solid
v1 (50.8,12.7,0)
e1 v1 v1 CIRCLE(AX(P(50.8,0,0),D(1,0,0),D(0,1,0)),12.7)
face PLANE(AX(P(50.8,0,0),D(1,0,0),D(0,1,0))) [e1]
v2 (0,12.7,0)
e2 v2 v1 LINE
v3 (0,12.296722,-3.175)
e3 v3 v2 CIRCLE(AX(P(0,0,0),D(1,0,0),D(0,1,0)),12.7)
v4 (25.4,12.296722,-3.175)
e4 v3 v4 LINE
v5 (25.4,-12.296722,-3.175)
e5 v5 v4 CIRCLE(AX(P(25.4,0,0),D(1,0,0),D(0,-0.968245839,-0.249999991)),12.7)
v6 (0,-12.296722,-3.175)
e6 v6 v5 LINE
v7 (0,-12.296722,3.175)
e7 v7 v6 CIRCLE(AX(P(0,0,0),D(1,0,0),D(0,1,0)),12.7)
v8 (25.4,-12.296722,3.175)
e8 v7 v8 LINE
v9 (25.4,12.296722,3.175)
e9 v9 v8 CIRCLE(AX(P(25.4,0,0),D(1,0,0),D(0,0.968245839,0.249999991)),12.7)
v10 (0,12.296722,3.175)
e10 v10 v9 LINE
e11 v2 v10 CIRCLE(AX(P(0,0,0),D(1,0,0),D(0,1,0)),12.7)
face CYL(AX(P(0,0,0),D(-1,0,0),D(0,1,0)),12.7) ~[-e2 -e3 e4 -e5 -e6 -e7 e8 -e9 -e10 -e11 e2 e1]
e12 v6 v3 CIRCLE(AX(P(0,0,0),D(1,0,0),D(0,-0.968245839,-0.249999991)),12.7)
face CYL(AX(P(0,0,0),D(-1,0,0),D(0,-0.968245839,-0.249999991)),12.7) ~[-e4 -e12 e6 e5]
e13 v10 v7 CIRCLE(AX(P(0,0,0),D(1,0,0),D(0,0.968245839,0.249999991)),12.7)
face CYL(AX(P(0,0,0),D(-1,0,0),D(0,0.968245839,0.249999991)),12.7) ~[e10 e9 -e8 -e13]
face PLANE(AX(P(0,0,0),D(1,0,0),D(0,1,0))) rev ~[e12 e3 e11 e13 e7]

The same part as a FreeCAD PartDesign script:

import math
import FreeCAD as App
import Part
import Sketcher

V = App.Vector
Q = App.Units.Quantity

doc = App.newDocument("Part")
body = doc.addObject("PartDesign::Body", "Body")

sketch1 = body.newObject("Sketcher::SketchObject", "Sketch")
sketch1.AttachmentSupport = (doc.getObject("YZ_Plane"), [""])
sketch1.MapMode = "FlatFace"
sketch1.addGeometry(Part.Circle(V(0, 0, 0), V(0, 0, 1), 12.7), False)
sketch1.addConstraint(Sketcher.Constraint("Coincident", 0, 3, -1, 1))
sketch1.addConstraint(Sketcher.Constraint("Diameter", 0, Q("1 in")))
pad1 = body.newObject("PartDesign::Pad", "Pad")
pad1.Profile = sketch1
pad1.Length = Q("2 in")

sketch2 = body.newObject("Sketcher::SketchObject", "Sketch001")
sketch2.AttachmentSupport = (doc.getObject("YZ_Plane"), [""])
sketch2.MapMode = "FlatFace"
sketch2.addGeometry(Part.LineSegment(V(25.4, 28.575, 0), V(25.4, 3.175, 0)), False)
sketch2.addGeometry(Part.LineSegment(V(25.4, 3.175, 0), V(12.296722, 3.175, 0)), False)
sketch2.addGeometry(Part.ArcOfCircle(Part.Circle(V(0, 0, 0), V(0, 0, 1), 12.7), math.radians(14.477512), math.radians(165.522488)), False)
sketch2.addGeometry(Part.LineSegment(V(-12.296722, 3.175, 0), V(-25.4, 3.175, 0)), False)
sketch2.addGeometry(Part.LineSegment(V(-25.4, 3.175, 0), V(-25.4, 28.575, 0)), False)
sketch2.addGeometry(Part.LineSegment(V(-25.4, 28.575, 0), V(25.4, 28.575, 0)), False)
sketch2.addGeometry(Part.LineSegment(V(12.296722, -3.175, 0), V(25.4, -3.175, 0)), False)
sketch2.addGeometry(Part.LineSegment(V(25.4, -3.175, 0), V(25.4, -53.975, 0)), False)
sketch2.addGeometry(Part.LineSegment(V(25.4, -53.975, 0), V(-25.4, -53.975, 0)), False)
sketch2.addGeometry(Part.LineSegment(V(-25.4, -53.975, 0), V(-25.4, -3.175, 0)), False)
sketch2.addGeometry(Part.LineSegment(V(-25.4, -3.175, 0), V(-12.296722, -3.175, 0)), False)
sketch2.addGeometry(Part.ArcOfCircle(Part.Circle(V(0, 0, 0), V(0, 0, 1), 12.7), math.radians(-165.522488), math.radians(-14.477512)), False)
sketch2.addConstraint(Sketcher.Constraint("Coincident", 0, 2, 1, 1))
sketch2.addConstraint(Sketcher.Constraint("Coincident", 1, 2, 2, 1))
sketch2.addConstraint(Sketcher.Constraint("Coincident", 2, 2, 3, 1))
sketch2.addConstraint(Sketcher.Constraint("Coincident", 3, 2, 4, 1))
sketch2.addConstraint(Sketcher.Constraint("Coincident", 4, 2, 5, 1))
sketch2.addConstraint(Sketcher.Constraint("Coincident", 5, 2, 0, 1))
sketch2.addConstraint(Sketcher.Constraint("Coincident", 6, 2, 7, 1))
sketch2.addConstraint(Sketcher.Constraint("Coincident", 7, 2, 8, 1))
sketch2.addConstraint(Sketcher.Constraint("Coincident", 8, 2, 9, 1))
sketch2.addConstraint(Sketcher.Constraint("Coincident", 9, 2, 10, 1))
sketch2.addConstraint(Sketcher.Constraint("Coincident", 10, 2, 11, 1))
sketch2.addConstraint(Sketcher.Constraint("Coincident", 11, 2, 6, 1))
sketch2.addConstraint(Sketcher.Constraint("Vertical", 0))
sketch2.addConstraint(Sketcher.Constraint("Horizontal", 1))
sketch2.addConstraint(Sketcher.Constraint("Horizontal", 3))
sketch2.addConstraint(Sketcher.Constraint("Vertical", 4))
sketch2.addConstraint(Sketcher.Constraint("Horizontal", 5))
sketch2.addConstraint(Sketcher.Constraint("Horizontal", 6))
sketch2.addConstraint(Sketcher.Constraint("Vertical", 7))
sketch2.addConstraint(Sketcher.Constraint("Horizontal", 8))
sketch2.addConstraint(Sketcher.Constraint("Vertical", 9))
sketch2.addConstraint(Sketcher.Constraint("Horizontal", 10))
sketch2.addConstraint(Sketcher.Constraint("Coincident", 2, 3, -1, 1))
sketch2.addConstraint(Sketcher.Constraint("Coincident", 11, 3, -1, 1))
sketch2.addConstraint(Sketcher.Constraint("Equal", 2, 11))
sketch2.addConstraint(Sketcher.Constraint("Symmetric", 3, 2, 6, 2, -1, 1))
sketch2.addConstraint(Sketcher.Constraint("Symmetric", 0, 2, 9, 2, -1, 1))
sketch2.addConstraint(Sketcher.Constraint("Symmetric", 0, 2, 3, 2, -2))
sketch2.addConstraint(Sketcher.Constraint("Equal", 8, 7))
sketch2.addConstraint(Sketcher.Constraint("Radius", 2, Q("0.5 in")))
sketch2.addConstraint(Sketcher.Constraint("DistanceX", 5, 1, 5, 2, Q("2 in")))
sketch2.addConstraint(Sketcher.Constraint("DistanceY", 0, 2, 0, 1, Q("1 in")))
sketch2.addConstraint(Sketcher.Constraint("DistanceY", 6, 2, 0, 2, Q("0.25 in")))
pocket1 = body.newObject("PartDesign::Pocket", "Pocket")
pocket1.Profile = sketch2
pocket1.Length = Q("1 in")
pocket1.Reversed = True

doc.recompute()
